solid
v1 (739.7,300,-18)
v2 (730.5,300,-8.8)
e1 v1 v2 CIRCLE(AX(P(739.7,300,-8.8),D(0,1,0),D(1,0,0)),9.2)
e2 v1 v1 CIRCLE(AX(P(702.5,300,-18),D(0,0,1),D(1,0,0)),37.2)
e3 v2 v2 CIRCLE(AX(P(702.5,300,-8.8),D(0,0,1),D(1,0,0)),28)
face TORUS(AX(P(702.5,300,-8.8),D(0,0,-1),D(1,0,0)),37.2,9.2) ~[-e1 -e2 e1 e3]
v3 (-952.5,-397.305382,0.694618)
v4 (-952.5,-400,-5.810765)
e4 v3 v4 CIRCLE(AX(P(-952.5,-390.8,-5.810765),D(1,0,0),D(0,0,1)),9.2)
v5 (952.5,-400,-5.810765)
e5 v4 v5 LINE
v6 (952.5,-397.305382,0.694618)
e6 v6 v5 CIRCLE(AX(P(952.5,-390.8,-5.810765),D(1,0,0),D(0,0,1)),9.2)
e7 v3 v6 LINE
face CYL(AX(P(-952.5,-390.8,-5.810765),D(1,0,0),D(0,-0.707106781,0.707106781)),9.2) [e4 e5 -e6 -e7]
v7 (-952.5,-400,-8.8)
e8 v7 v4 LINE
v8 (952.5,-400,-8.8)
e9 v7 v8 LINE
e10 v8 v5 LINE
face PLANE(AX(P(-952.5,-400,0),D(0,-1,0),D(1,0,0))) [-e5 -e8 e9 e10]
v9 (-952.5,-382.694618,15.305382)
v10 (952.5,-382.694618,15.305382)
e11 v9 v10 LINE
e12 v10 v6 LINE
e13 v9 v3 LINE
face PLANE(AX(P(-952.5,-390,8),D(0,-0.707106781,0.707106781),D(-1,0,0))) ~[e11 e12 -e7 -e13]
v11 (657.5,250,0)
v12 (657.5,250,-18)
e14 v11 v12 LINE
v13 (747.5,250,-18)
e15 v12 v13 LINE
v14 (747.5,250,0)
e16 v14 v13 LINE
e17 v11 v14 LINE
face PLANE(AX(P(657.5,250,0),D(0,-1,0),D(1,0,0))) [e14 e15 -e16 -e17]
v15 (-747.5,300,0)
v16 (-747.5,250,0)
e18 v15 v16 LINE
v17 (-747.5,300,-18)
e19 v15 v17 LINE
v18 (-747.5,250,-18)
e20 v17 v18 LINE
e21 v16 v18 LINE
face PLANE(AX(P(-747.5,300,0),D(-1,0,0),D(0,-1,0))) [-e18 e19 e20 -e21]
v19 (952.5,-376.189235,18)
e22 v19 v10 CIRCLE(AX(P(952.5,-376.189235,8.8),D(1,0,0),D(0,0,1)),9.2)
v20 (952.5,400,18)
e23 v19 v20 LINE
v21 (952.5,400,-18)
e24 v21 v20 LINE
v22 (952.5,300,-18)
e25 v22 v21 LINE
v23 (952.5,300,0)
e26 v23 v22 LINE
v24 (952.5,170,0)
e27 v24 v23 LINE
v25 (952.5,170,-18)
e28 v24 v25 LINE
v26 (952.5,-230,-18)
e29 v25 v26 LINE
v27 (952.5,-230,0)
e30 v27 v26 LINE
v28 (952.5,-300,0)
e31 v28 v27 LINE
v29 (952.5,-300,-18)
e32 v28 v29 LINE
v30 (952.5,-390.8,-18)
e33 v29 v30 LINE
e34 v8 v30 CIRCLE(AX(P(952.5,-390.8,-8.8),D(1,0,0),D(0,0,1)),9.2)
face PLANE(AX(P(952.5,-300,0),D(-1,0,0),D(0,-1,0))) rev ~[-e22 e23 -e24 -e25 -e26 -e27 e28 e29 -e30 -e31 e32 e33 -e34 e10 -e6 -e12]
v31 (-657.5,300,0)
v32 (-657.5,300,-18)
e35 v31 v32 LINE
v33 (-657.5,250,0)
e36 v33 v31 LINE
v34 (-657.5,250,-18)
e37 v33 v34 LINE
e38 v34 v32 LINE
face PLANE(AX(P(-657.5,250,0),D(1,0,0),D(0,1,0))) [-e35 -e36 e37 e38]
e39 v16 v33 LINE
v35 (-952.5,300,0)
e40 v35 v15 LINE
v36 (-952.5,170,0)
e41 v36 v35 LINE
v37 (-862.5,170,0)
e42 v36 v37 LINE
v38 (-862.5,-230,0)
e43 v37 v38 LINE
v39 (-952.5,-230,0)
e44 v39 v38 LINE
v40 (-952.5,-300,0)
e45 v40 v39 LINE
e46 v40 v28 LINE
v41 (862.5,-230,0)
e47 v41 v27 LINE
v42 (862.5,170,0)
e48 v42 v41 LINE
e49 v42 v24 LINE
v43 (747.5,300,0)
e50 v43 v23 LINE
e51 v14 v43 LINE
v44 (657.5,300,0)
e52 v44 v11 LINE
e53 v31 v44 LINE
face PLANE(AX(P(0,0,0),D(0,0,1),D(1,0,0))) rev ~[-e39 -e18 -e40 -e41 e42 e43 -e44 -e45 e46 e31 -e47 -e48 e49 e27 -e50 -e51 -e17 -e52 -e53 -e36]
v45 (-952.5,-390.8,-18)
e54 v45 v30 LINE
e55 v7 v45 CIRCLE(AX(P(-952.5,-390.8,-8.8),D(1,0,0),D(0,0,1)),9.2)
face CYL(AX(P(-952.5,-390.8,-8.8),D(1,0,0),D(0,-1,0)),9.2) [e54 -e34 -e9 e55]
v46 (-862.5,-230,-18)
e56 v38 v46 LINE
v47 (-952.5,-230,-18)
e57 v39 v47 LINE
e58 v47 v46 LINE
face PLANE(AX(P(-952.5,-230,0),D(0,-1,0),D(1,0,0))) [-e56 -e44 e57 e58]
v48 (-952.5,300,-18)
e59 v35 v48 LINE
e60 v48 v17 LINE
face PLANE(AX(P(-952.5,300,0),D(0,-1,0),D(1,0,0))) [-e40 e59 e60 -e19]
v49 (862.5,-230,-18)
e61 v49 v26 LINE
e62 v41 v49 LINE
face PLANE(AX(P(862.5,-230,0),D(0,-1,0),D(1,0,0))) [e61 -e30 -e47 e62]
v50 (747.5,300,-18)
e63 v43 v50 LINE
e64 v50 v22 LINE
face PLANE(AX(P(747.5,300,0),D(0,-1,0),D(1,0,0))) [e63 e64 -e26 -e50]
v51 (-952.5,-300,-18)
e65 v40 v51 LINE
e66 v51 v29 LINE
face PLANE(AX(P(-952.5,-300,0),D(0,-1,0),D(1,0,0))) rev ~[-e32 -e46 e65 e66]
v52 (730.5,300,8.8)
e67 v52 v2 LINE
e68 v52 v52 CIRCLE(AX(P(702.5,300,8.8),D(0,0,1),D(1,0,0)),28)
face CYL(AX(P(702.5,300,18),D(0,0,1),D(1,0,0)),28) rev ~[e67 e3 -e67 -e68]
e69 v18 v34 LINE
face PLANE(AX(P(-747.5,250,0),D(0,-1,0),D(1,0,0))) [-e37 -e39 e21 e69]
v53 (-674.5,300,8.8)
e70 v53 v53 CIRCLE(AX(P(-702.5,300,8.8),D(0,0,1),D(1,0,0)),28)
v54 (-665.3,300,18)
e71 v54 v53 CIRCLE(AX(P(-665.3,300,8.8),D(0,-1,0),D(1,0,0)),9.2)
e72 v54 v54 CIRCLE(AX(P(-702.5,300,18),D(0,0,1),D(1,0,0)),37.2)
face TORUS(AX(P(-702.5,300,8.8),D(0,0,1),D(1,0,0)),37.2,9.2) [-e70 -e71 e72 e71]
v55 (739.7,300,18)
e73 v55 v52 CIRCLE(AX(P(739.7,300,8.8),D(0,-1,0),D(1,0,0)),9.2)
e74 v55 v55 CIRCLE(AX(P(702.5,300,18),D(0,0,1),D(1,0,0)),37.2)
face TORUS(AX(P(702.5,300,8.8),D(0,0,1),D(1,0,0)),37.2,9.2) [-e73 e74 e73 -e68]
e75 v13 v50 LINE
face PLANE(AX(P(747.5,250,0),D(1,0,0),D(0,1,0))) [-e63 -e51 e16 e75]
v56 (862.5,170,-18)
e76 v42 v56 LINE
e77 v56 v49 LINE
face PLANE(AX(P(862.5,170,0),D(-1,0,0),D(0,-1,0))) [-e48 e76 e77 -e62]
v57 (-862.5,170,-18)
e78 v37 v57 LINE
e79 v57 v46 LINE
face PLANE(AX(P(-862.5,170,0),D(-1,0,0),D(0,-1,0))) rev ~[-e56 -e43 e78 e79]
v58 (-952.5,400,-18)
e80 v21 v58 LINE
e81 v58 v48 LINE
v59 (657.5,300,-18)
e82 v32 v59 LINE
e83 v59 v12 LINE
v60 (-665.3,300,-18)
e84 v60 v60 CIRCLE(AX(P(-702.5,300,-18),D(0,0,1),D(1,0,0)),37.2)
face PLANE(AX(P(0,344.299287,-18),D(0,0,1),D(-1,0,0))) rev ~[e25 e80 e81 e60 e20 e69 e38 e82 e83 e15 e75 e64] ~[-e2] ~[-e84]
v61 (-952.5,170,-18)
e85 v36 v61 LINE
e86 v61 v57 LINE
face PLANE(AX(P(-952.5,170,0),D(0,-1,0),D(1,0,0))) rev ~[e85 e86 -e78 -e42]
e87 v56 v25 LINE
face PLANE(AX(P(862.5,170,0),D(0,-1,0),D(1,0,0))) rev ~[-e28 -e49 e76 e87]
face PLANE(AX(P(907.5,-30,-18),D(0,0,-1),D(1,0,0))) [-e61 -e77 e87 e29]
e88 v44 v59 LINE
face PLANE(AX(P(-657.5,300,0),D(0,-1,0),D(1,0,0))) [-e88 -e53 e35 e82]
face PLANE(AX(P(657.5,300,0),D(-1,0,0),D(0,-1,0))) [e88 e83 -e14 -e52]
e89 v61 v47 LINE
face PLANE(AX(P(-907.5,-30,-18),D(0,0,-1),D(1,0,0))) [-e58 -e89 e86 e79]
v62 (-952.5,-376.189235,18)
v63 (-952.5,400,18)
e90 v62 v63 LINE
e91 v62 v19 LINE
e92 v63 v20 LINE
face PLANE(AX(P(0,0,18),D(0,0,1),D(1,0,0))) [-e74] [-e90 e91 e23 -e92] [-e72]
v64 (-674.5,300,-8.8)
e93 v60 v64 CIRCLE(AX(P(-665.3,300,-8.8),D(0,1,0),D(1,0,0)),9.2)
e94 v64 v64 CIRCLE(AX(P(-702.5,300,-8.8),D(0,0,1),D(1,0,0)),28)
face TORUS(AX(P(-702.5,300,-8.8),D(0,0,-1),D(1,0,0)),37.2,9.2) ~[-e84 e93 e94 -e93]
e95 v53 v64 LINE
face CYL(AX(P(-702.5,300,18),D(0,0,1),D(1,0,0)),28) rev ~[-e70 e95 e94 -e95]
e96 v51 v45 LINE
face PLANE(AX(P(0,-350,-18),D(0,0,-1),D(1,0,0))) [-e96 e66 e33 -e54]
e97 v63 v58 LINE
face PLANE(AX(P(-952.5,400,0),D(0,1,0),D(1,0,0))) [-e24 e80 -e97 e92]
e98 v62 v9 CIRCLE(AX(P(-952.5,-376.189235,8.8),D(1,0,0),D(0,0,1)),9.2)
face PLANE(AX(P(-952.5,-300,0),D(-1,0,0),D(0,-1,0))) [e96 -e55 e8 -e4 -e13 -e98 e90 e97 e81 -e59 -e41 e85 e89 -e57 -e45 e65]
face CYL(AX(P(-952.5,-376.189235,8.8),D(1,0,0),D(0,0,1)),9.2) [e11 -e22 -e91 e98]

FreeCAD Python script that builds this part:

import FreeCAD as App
import Part
import Sketcher

V = App.Vector
Q = App.Units.Quantity


def edges_at(feature, points):
    """Names of the edges that pass closest to the given points."""
    edges = feature.Shape.Edges
    near = lambda p: min(range(len(edges)), key=lambda i: edges[i].distToShape(Part.Vertex(*p))[0])
    return sorted({f"Edge{near(p) + 1}" for p in points})

doc = App.newDocument("Part")
body = doc.addObject("PartDesign::Body", "Body")

# Sketch on XY plane
sketch1 = doc.addObject("Sketcher::SketchObject", "Sketch")
body.addObject(sketch1)
sketch1.AttachmentSupport = (doc.XY_Plane, [""])
sketch1.MapMode = "FlatFace"
sketch1.addGeometry(Part.LineSegment(V(-952, 400, 0), V(-952, -400, 0)), False)
sketch1.addGeometry(Part.LineSegment(V(-952, -400, 0), V(952, -400, 0)), False)
sketch1.addGeometry(Part.LineSegment(V(952, -400, 0), V(952, 400, 0)), False)
sketch1.addGeometry(Part.LineSegment(V(952, 400, 0), V(-952, 400, 0)), False)
sketch1.addConstraint(Sketcher.Constraint("Coincident", 0, 2, 1, 1))
sketch1.addConstraint(Sketcher.Constraint("Coincident", 1, 2, 2, 1))
sketch1.addConstraint(Sketcher.Constraint("Coincident", 2, 2, 3, 1))
sketch1.addConstraint(Sketcher.Constraint("Coincident", 3, 2, 0, 1))
sketch1.addConstraint(Sketcher.Constraint("Vertical", 0))
sketch1.addConstraint(Sketcher.Constraint("Horizontal", 1))
sketch1.addConstraint(Sketcher.Constraint("Vertical", 2))
sketch1.addConstraint(Sketcher.Constraint("Horizontal", 3))
sketch1.addConstraint(Sketcher.Constraint("Symmetric", 0, 2, 2, 2, -1, 1))
sketch1.addConstraint(Sketcher.Constraint("DistanceX", 1, 1, 1, 2, Q("1905 mm")))
sketch1.addConstraint(Sketcher.Constraint("DistanceY", 0, 2, 0, 1, Q("800 mm")))
pad1 = doc.addObject("PartDesign::Pad", "Pad")
body.addObject(pad1)
pad1.Profile = sketch1
pad1.Length = 18

# Sketch on XY plane
sketch2 = doc.addObject("Sketcher::SketchObject", "Sketch001")
body.addObject(sketch2)
sketch2.AttachmentSupport = (doc.XY_Plane, [""])
sketch2.MapMode = "FlatFace"
sketch2.addGeometry(Part.LineSegment(V(-952, -400, 0), V(-952, -300, 0)), False)
sketch2.addGeometry(Part.LineSegment(V(-952, -300, 0), V(952, -300, 0)), False)
sketch2.addGeometry(Part.LineSegment(V(952, -300, 0), V(952, -400, 0)), False)
sketch2.addGeometry(Part.LineSegment(V(952, -400, 0), V(-952, -400, 0)), False)
sketch2.addGeometry(Part.LineSegment(V(952, 400, 0), V(952, 300, 0)), False)
sketch2.addGeometry(Part.LineSegment(V(952, 300, 0), V(748, 300, 0)), False)
sketch2.addGeometry(Part.LineSegment(V(748, 300, 0), V(748, 250, 0)), False)
sketch2.addGeometry(Part.LineSegment(V(748, 250, 0), V(658, 250, 0)), False)
sketch2.addGeometry(Part.LineSegment(V(658, 250, 0), V(658, 300, 0)), False)
sketch2.addGeometry(Part.LineSegment(V(658, 300, 0), V(-658, 300, 0)), False)
sketch2.addGeometry(Part.LineSegment(V(-658, 300, 0), V(-658, 250, 0)), False)
sketch2.addGeometry(Part.LineSegment(V(-658, 250, 0), V(-748, 250, 0)), False)
sketch2.addGeometry(Part.LineSegment(V(-748, 250, 0), V(-748, 300, 0)), False)
sketch2.addGeometry(Part.LineSegment(V(-748, 300, 0), V(-952, 300, 0)), False)
sketch2.addGeometry(Part.LineSegment(V(-952, 300, 0), V(-952, 400, 0)), False)
sketch2.addGeometry(Part.LineSegment(V(-952, 400, 0), V(952, 400, 0)), False)
sketch2.addGeometry(Part.LineSegment(V(-952, -230, 0), V(-952, 170, 0)), False)
sketch2.addGeometry(Part.LineSegment(V(-952, 170, 0), V(-862, 170, 0)), False)
sketch2.addGeometry(Part.LineSegment(V(-862, 170, 0), V(-862, -230, 0)), False)
sketch2.addGeometry(Part.LineSegment(V(-862, -230, 0), V(-952, -230, 0)), False)
sketch2.addGeometry(Part.LineSegment(V(862, -230, 0), V(862, 170, 0)), False)
sketch2.addGeometry(Part.LineSegment(V(862, 170, 0), V(952, 170, 0)), False)
sketch2.addGeometry(Part.LineSegment(V(952, 170, 0), V(952, -230, 0)), False)
sketch2.addGeometry(Part.LineSegment(V(952, -230, 0), V(862, -230, 0)), False)
sketch2.addConstraint(Sketcher.Constraint("Coincident", 0, 2, 1, 1))
sketch2.addConstraint(Sketcher.Constraint("Coincident", 1, 2, 2, 1))
sketch2.addConstraint(Sketcher.Constraint("Coincident", 2, 2, 3, 1))
sketch2.addConstraint(Sketcher.Constraint("Coincident", 3, 2, 0, 1))
sketch2.addConstraint(Sketcher.Constraint("Coincident", 4, 2, 5, 1))
sketch2.addConstraint(Sketcher.Constraint("Coincident", 5, 2, 6, 1))
sketch2.addConstraint(Sketcher.Constraint("Coincident", 6, 2, 7, 1))
sketch2.addConstraint(Sketcher.Constraint("Coincident", 7, 2, 8, 1))
sketch2.addConstraint(Sketcher.Constraint("Coincident", 8, 2, 9, 1))
sketch2.addConstraint(Sketcher.Constraint("Coincident", 9, 2, 10, 1))
sketch2.addConstraint(Sketcher.Constraint("Coincident", 10, 2, 11, 1))
sketch2.addConstraint(Sketcher.Constraint("Coincident", 11, 2, 12, 1))
sketch2.addConstraint(Sketcher.Constraint("Coincident", 12, 2, 13, 1))
sketch2.addConstraint(Sketcher.Constraint("Coincident", 13, 2, 14, 1))
sketch2.addConstraint(Sketcher.Constraint("Coincident", 14, 2, 15, 1))
sketch2.addConstraint(Sketcher.Constraint("Coincident", 15, 2, 4, 1))
sketch2.addConstraint(Sketcher.Constraint("Coincident", 16, 2, 17, 1))
sketch2.addConstraint(Sketcher.Constraint("Coincident", 17, 2, 18, 1))
sketch2.addConstraint(Sketcher.Constraint("Coincident", 18, 2, 19, 1))
sketch2.addConstraint(Sketcher.Constraint("Coincident", 19, 2, 16, 1))
sketch2.addConstraint(Sketcher.Constraint("Coincident", 20, 2, 21, 1))
sketch2.addConstraint(Sketcher.Constraint("Coincident", 21, 2, 22, 1))
sketch2.addConstraint(Sketcher.Constraint("Coincident", 22, 2, 23, 1))
sketch2.addConstraint(Sketcher.Constraint("Coincident", 23, 2, 20, 1))
sketch2.addConstraint(Sketcher.Constraint("Vertical", 0))
sketch2.addConstraint(Sketcher.Constraint("Horizontal", 1))
sketch2.addConstraint(Sketcher.Constraint("Vertical", 2))
sketch2.addConstraint(Sketcher.Constraint("Horizontal", 3))
sketch2.addConstraint(Sketcher.Constraint("Vertical", 4))
sketch2.addConstraint(Sketcher.Constraint("Horizontal", 5))
sketch2.addConstraint(Sketcher.Constraint("Vertical", 6))
sketch2.addConstraint(Sketcher.Constraint("Horizontal", 7))
sketch2.addConstraint(Sketcher.Constraint("Vertical", 8))
sketch2.addConstraint(Sketcher.Constraint("Horizontal", 9))
sketch2.addConstraint(Sketcher.Constraint("Vertical", 10))
sketch2.addConstraint(Sketcher.Constraint("Horizontal", 11))
sketch2.addConstraint(Sketcher.Constraint("Vertical", 12))
sketch2.addConstraint(Sketcher.Constraint("Horizontal", 13))
sketch2.addConstraint(Sketcher.Constraint("Vertical", 14))
sketch2.addConstraint(Sketcher.Constraint("Horizontal", 15))
sketch2.addConstraint(Sketcher.Constraint("Vertical", 16))
sketch2.addConstraint(Sketcher.Constraint("Horizontal", 17))
sketch2.addConstraint(Sketcher.Constraint("Vertical", 18))
sketch2.addConstraint(Sketcher.Constraint("Horizontal", 19))
sketch2.addConstraint(Sketcher.Constraint("Vertical", 20))
sketch2.addConstraint(Sketcher.Constraint("Horizontal", 21))
sketch2.addConstraint(Sketcher.Constraint("Vertical", 22))
sketch2.addConstraint(Sketcher.Constraint("Horizontal", 23))
sketch2.addConstraint(Sketcher.Constraint("Symmetric", 0, 2, 4, 2, -1, 1))
sketch2.addConstraint(Sketcher.Constraint("Symmetric", 1, 2, 13, 2, -1, 1))
sketch2.addConstraint(Sketcher.Constraint("Symmetric", 7, 2, 10, 2, -2))
sketch2.addConstraint(Sketcher.Constraint("Symmetric", 17, 2, 20, 2, -2))
sketch2.addConstraint(Sketcher.Constraint("Symmetric", 19, 2, 22, 2, -2))
sketch2.addConstraint(Sketcher.Constraint("Symmetric", 3, 2, 14, 2, -1))
sketch2.addConstraint(Sketcher.Constraint("Horizontal", 5, 2, 8, 2))
sketch2.addConstraint(Sketcher.Constraint("Vertical", 14, 2, 16, 2))
sketch2.addConstraint(Sketcher.Constraint("Equal", 7, 11))
sketch2.addConstraint(Sketcher.Constraint("Equal", 11, 17))
sketch2.addConstraint(Sketcher.Constraint("DistanceX", 1, 1, 1, 2, Q("1905 mm")))
sketch2.addConstraint(Sketcher.Constraint("DistanceX", 5, 2, 5, 1, Q("205 mm")))
sketch2.addConstraint(Sketcher.Constraint("DistanceX", 7, 2, 7, 1, Q("90 mm")))
sketch2.addConstraint(Sketcher.Constraint("DistanceY", 0, 1, 0, 2, Q("100 mm")))
sketch2.addConstraint(Sketcher.Constraint("DistanceY", 6, 2, 6, 1, Q("50 mm")))
sketch2.addConstraint(Sketcher.Constraint("DistanceY", 16, 1, 16, 2, Q("400 mm")))
sketch2.addConstraint(Sketcher.Constraint("DistanceY", 0, 2, -1, 1, Q("300 mm")))
sketch2.addConstraint(Sketcher.Constraint("DistanceY", -1, 1, 16, 2, Q("170 mm")))
pad2 = doc.addObject("PartDesign::Pad", "Pad001")
body.addObject(pad2)
pad2.Profile = sketch2
pad2.Length = 18
pad2.Reversed = True

# Sketch on XY plane
sketch3 = doc.addObject("Sketcher::SketchObject", "Sketch002")
body.addObject(sketch3)
sketch3.AttachmentSupport = (doc.XY_Plane, [""])
sketch3.MapMode = "FlatFace"
sketch3.AttachmentOffset = App.Placement(V(0, 0, 18), App.Rotation())
sketch3.addGeometry(Part.Circle(V(-702, 300, 0), V(0, 0, 1), 28), False)
sketch3.addGeometry(Part.Circle(V(702, 300, 0), V(0, 0, 1), 28), False)
sketch3.addConstraint(Sketcher.Constraint("Equal", 0, 1))
sketch3.addConstraint(Sketcher.Constraint("Symmetric", 0, 3, 1, 3, -2))
sketch3.addConstraint(Sketcher.Constraint("Diameter", 0, Q("56 mm")))
sketch3.addConstraint(Sketcher.Constraint("DistanceY", -1, 1, 0, 3, Q("300 mm")))
sketch3.addConstraint(Sketcher.Constraint("DistanceX", 0, 3, 1, 3, Q("1405 mm")))
pocket1 = doc.addObject("PartDesign::Pocket", "Pocket")
body.addObject(pocket1)
pocket1.Profile = sketch3
pocket1.Length = 40
doc.recompute()

fillet = doc.addObject("PartDesign::Fillet", "Fillet")
body.addObject(fillet)
fillet.Base = (pocket1, edges_at(pocket1, [
    (674.5, 300, -18),
    (-730.5, 300, -18),
    (-730.5, 300, 18),
    (674.5, 300, 18),
]))
fillet.Radius = 9.2
doc.recompute()

chamfer = doc.addObject("PartDesign::Chamfer", "Chamfer")
body.addObject(chamfer)
chamfer.Base = (fillet, edges_at(fillet, [(0, -400, 18)]))
chamfer.Size = 20
doc.recompute()

fillet2 = doc.addObject("PartDesign::Fillet", "Fillet001")
body.addObject(fillet2)
fillet2.Base = (chamfer, edges_at(chamfer, [(0, -400, -18), (0, -400, -2), (0, -380, 18)]))
fillet2.Radius = 9.2

doc.recompute()
